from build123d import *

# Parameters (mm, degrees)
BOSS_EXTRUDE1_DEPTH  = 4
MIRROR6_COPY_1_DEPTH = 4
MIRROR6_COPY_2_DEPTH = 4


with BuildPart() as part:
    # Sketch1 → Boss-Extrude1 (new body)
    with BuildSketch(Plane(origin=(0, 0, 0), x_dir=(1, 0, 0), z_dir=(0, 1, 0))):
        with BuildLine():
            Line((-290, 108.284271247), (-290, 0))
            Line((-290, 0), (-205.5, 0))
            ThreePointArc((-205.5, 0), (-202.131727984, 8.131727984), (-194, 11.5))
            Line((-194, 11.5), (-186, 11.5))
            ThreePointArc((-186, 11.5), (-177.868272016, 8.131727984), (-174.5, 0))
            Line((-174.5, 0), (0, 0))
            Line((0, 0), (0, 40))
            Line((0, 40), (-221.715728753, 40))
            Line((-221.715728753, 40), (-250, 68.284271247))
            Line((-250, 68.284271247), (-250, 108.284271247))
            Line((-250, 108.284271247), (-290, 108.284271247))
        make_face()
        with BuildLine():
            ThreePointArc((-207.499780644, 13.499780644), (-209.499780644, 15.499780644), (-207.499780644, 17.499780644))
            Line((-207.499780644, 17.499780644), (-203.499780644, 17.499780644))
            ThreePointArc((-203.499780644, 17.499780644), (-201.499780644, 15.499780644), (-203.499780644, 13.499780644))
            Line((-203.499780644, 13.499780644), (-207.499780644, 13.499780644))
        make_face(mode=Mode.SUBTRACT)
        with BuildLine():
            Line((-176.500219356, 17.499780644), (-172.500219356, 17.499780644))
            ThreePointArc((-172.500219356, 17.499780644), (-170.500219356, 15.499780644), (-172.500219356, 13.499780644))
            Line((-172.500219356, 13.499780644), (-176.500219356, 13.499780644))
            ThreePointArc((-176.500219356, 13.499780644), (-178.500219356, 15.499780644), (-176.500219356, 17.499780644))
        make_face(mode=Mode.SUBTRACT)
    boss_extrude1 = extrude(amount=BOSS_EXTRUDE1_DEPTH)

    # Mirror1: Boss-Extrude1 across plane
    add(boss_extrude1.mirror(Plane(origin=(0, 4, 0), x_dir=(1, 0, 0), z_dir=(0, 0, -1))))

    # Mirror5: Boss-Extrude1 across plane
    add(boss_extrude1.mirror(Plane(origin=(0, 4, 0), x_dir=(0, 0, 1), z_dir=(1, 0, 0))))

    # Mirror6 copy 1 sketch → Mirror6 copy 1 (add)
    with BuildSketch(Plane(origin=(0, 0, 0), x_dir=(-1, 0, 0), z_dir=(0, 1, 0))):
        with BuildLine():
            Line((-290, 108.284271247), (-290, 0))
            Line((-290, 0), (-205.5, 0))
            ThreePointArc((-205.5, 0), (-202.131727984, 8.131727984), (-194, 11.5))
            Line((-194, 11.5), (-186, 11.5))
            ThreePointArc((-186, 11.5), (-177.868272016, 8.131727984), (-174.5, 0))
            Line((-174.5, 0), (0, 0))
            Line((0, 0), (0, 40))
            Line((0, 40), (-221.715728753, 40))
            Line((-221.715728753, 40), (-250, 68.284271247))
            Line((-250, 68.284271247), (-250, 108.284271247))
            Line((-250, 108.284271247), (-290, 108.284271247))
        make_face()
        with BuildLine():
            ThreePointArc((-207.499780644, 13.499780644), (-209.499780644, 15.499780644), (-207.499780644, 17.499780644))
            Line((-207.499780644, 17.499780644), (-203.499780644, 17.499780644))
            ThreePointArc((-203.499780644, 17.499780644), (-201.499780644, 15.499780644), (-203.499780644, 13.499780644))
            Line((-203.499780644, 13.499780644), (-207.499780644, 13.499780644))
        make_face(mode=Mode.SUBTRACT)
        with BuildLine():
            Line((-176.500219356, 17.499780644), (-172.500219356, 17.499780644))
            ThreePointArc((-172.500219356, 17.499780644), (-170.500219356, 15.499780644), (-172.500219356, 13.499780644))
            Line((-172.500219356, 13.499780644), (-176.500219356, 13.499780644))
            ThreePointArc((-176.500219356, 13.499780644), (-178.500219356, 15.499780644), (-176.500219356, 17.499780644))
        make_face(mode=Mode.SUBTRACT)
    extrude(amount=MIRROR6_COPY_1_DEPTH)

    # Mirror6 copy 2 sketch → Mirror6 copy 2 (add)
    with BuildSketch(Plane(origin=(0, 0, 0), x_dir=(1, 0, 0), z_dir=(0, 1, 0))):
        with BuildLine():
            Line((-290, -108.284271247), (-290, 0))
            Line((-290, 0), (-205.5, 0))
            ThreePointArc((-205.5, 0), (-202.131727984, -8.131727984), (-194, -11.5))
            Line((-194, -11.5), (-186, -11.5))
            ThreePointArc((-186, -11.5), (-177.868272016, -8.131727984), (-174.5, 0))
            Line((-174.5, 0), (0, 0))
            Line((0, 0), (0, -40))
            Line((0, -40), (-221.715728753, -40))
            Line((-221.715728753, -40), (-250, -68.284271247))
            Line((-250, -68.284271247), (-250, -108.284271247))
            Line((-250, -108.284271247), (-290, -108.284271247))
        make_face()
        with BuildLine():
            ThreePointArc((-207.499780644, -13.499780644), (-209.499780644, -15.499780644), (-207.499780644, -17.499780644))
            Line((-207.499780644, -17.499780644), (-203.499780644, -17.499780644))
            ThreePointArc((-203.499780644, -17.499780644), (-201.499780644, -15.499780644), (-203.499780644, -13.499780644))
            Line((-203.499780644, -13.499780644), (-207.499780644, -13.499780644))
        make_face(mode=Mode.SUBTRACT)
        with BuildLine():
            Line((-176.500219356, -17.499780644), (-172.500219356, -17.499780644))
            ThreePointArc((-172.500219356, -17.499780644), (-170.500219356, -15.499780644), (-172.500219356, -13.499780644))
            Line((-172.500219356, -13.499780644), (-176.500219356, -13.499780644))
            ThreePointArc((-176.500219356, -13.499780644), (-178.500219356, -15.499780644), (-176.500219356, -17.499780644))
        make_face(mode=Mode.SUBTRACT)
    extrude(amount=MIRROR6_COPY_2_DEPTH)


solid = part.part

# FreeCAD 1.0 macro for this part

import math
import FreeCAD as App
import Part
import Sketcher
Q = App.Units.Quantity

doc = App.newDocument("Part")
body = doc.addObject("PartDesign::Body", "Body")

# Sketch on XZ plane
sketch1 = body.newObject("Sketcher::SketchObject", "Sketch")
sketch1.AttachmentSupport = (doc.getObject("XZ_Plane"), [""])
sketch1.MapMode = "FlatFace"
sketch1.addGeometry([
    Part.LineSegment(App.Vector(-290, -108.284271, 0), App.Vector(-290, 0, 0)),  # 0
    Part.LineSegment(App.Vector(-290, 0, 0), App.Vector(-205.5, 0, 0)),  # 1
    Part.ArcOfCircle(Part.Circle(App.Vector(-194, 0, 0), App.Vector(0, 0, 1), 11.5), math.radians(180), math.radians(270)),  # 2
    Part.LineSegment(App.Vector(-194, -11.5, 0), App.Vector(-186, -11.5, 0)),  # 3
    Part.ArcOfCircle(Part.Circle(App.Vector(-186, 0, 0), App.Vector(0, 0, 1), 11.5), math.radians(-90), math.radians(0)),  # 4
    Part.LineSegment(App.Vector(-174.5, 0, 0), App.Vector(0, 0, 0)),  # 5
    Part.LineSegment(App.Vector(0, 0, 0), App.Vector(0, -40, 0)),  # 6
    Part.LineSegment(App.Vector(0, -40, 0), App.Vector(-221.715729, -40, 0)),  # 7
    Part.LineSegment(App.Vector(-221.715729, -40, 0), App.Vector(-250, -68.284271, 0)),  # 8
    Part.LineSegment(App.Vector(-250, -68.284271, 0), App.Vector(-250, -108.284271, 0)),  # 9
    Part.LineSegment(App.Vector(-250, -108.284271, 0), App.Vector(-290, -108.284271, 0)),  # 10
    Part.LineSegment(App.Vector(-203.499781, -13.499781, 0), App.Vector(-207.499781, -13.499781, 0)),  # 11
    Part.ArcOfCircle(Part.Circle(App.Vector(-207.499781, -15.499781, 0), App.Vector(0, 0, 1), 2), math.radians(90), math.radians(270)),  # 12
    Part.LineSegment(App.Vector(-207.499781, -17.499781, 0), App.Vector(-203.499781, -17.499781, 0)),  # 13
    Part.ArcOfCircle(Part.Circle(App.Vector(-203.499781, -15.499781, 0), App.Vector(0, 0, 1), 2), math.radians(-90), math.radians(90)),  # 14
    Part.ArcOfCircle(Part.Circle(App.Vector(-176.500219, -15.499781, 0), App.Vector(0, 0, 1), 2), math.radians(90), math.radians(270)),  # 15
    Part.LineSegment(App.Vector(-176.500219, -17.499781, 0), App.Vector(-172.500219, -17.499781, 0)),  # 16
    Part.ArcOfCircle(Part.Circle(App.Vector(-172.500219, -15.499781, 0), App.Vector(0, 0, 1), 2), math.radians(-90), math.radians(90)),  # 17
    Part.LineSegment(App.Vector(-172.500219, -13.499781, 0), App.Vector(-176.500219, -13.499781, 0)),  # 18
], False)
sketch1.addConstraint([
    Sketcher.Constraint("Coincident", 0, 2, 1, 1),
    Sketcher.Constraint("Coincident", 1, 2, 2, 1),
    Sketcher.Constraint("Tangent", 2, 2, 3, 1),
    Sketcher.Constraint("Tangent", 3, 2, 4, 1),
    Sketcher.Constraint("Coincident", 4, 2, 5, 1),
    Sketcher.Constraint("Coincident", 5, 2, 6, 1),
    Sketcher.Constraint("Coincident", 6, 2, 7, 1),
    Sketcher.Constraint("Coincident", 7, 2, 8, 1),
    Sketcher.Constraint("Coincident", 8, 2, 9, 1),
    Sketcher.Constraint("Coincident", 9, 2, 10, 1),
    Sketcher.Constraint("Coincident", 10, 2, 0, 1),
    Sketcher.Constraint("Tangent", 11, 2, 12, 1),
    Sketcher.Constraint("Tangent", 12, 2, 13, 1),
    Sketcher.Constraint("Tangent", 13, 2, 14, 1),
    Sketcher.Constraint("Tangent", 14, 2, 11, 1),
    Sketcher.Constraint("Tangent", 15, 2, 16, 1),
    Sketcher.Constraint("Tangent", 16, 2, 17, 1),
    Sketcher.Constraint("Tangent", 17, 2, 18, 1),
    Sketcher.Constraint("Tangent", 18, 2, 15, 1),
    Sketcher.Constraint("Vertical", 0),
    Sketcher.Constraint("Horizontal", 1),
    Sketcher.Constraint("Horizontal", 3),
    Sketcher.Constraint("Horizontal", 5),
    Sketcher.Constraint("Vertical", 6),
    Sketcher.Constraint("Horizontal", 7),
    Sketcher.Constraint("Vertical", 9),
    Sketcher.Constraint("Horizontal", 10),
    Sketcher.Constraint("Horizontal", 11),
    Sketcher.Constraint("Horizontal", 13),
    Sketcher.Constraint("Horizontal", 16),
    Sketcher.Constraint("Horizontal", 18),
    Sketcher.Constraint("Coincident", 5, 2, -1, 1),
    Sketcher.Constraint("Equal", 2, 4),
    Sketcher.Constraint("Equal", 14, 15),
    Sketcher.Constraint("PointOnObject", 2, 3, -1),
    Sketcher.Constraint("PointOnObject", 0, 2, -1),
    Sketcher.Constraint("Horizontal", 14, 3, 15, 3),
    Sketcher.Constraint("Equal", 13, 16),
    Sketcher.Constraint("Equal", 10, 6),
    Sketcher.Constraint("Equal", 6, 9),
    Sketcher.Constraint("Radius", 12, Q("2 mm")),
    Sketcher.Constraint("Radius", 2, Q("11.5 mm")),
    Sketcher.Constraint("DistanceX", 3, 1, 3, 2, Q("8 mm")),
    Sketcher.Constraint("DistanceX", 10, 2, 10, 1, Q("40 mm")),
    Sketcher.Constraint("DistanceX", 11, 2, 11, 1, Q("4 mm")),
    Sketcher.Constraint("Angle", 8, Q("-135 deg")),
    Sketcher.Constraint("Distance", 8, Q("40 mm")),
    Sketcher.Constraint("DistanceX", 1, 1, 1, 2, Q("84.5 mm")),
    Sketcher.Constraint("DistanceX", 5, 1, 5, 2, Q("174.5 mm")),
    Sketcher.Constraint("DistanceX", 12, 3, -1, 1, Q("207.499781 mm")),
    Sketcher.Constraint("DistanceY", 12, 3, -1, 1, Q("15.499781 mm")),
    Sketcher.Constraint("DistanceX", 15, 3, -1, 1, Q("176.500219 mm")),
])
pad1 = body.newObject("PartDesign::Pad", "Pad")
pad1.Profile = sketch1
pad1.Length = 4
pad1.Reversed = True
doc.recompute()

mirrored = body.newObject("PartDesign::Mirrored", "Mirrored")
mirrored.Originals = [pad1]
mirrored.MirrorPlane = (doc.getObject("XY_Plane"), [""])
body.Tip = mirrored
doc.recompute()

mirrored2 = body.newObject("PartDesign::Mirrored", "Mirrored001")
mirrored2.Originals = [pad1]
mirrored2.MirrorPlane = (doc.getObject("YZ_Plane"), [""])
body.Tip = mirrored2

# Sketch on XZ plane
sketch2 = body.newObject("Sketcher::SketchObject", "Sketch001")
sketch2.AttachmentSupport = (doc.getObject("XZ_Plane"), [""])
sketch2.MapMode = "FlatFace"
sketch2.addGeometry([
    Part.LineSegment(App.Vector(290, 108.284271, 0), App.Vector(290, 0, 0)),  # 0
    Part.LineSegment(App.Vector(290, 0, 0), App.Vector(205.5, 0, 0)),  # 1
    Part.ArcOfCircle(Part.Circle(App.Vector(194, 0, 0), App.Vector(0, 0, 1), 11.5), math.radians(0), math.radians(90)),  # 2
    Part.LineSegment(App.Vector(194, 11.5, 0), App.Vector(186, 11.5, 0)),  # 3
    Part.ArcOfCircle(Part.Circle(App.Vector(186, 0, 0), App.Vector(0, 0, 1), 11.5), math.radians(90), math.radians(180)),  # 4
    Part.LineSegment(App.Vector(174.5, 0, 0), App.Vector(0, 0, 0)),  # 5
    Part.LineSegment(App.Vector(0, 0, 0), App.Vector(0, 40, 0)),  # 6
    Part.LineSegment(App.Vector(0, 40, 0), App.Vector(221.715729, 40, 0)),  # 7
    Part.LineSegment(App.Vector(221.715729, 40, 0), App.Vector(250, 68.284271, 0)),  # 8
    Part.LineSegment(App.Vector(250, 68.284271, 0), App.Vector(250, 108.284271, 0)),  # 9
    Part.LineSegment(App.Vector(250, 108.284271, 0), App.Vector(290, 108.284271, 0)),  # 10
    Part.LineSegment(App.Vector(203.499781, 13.499781, 0), App.Vector(207.499781, 13.499781, 0)),  # 11
    Part.ArcOfCircle(Part.Circle(App.Vector(207.499781, 15.499781, 0), App.Vector(0, 0, 1), 2), math.radians(-90), math.radians(90)),  # 12
    Part.LineSegment(App.Vector(207.499781, 17.499781, 0), App.Vector(203.499781, 17.499781, 0)),  # 13
    Part.ArcOfCircle(Part.Circle(App.Vector(203.499781, 15.499781, 0), App.Vector(0, 0, 1), 2), math.radians(90), math.radians(270)),  # 14
    Part.ArcOfCircle(Part.Circle(App.Vector(176.500219, 15.499781, 0), App.Vector(0, 0, 1), 2), math.radians(-90), math.radians(90)),  # 15
    Part.LineSegment(App.Vector(176.500219, 17.499781, 0), App.Vector(172.500219, 17.499781, 0)),  # 16
    Part.ArcOfCircle(Part.Circle(App.Vector(172.500219, 15.499781, 0), App.Vector(0, 0, 1), 2), math.radians(90), math.radians(270)),  # 17
    Part.LineSegment(App.Vector(172.500219, 13.499781, 0), App.Vector(176.500219, 13.499781, 0)),  # 18
], False)
sketch2.addConstraint([
    Sketcher.Constraint("Coincident", 0, 2, 1, 1),
    Sketcher.Constraint("Coincident", 1, 2, 2, 1),
    Sketcher.Constraint("Tangent", 2, 2, 3, 1),
    Sketcher.Constraint("Tangent", 3, 2, 4, 1),
    Sketcher.Constraint("Coincident", 4, 2, 5, 1),
    Sketcher.Constraint("Coincident", 5, 2, 6, 1),
    Sketcher.Constraint("Coincident", 6, 2, 7, 1),
    Sketcher.Constraint("Coincident", 7, 2, 8, 1),
    Sketcher.Constraint("Coincident", 8, 2, 9, 1),
    Sketcher.Constraint("Coincident", 9, 2, 10, 1),
    Sketcher.Constraint("Coincident", 10, 2, 0, 1),
    Sketcher.Constraint("Tangent", 11, 2, 12, 1),
    Sketcher.Constraint("Tangent", 12, 2, 13, 1),
    Sketcher.Constraint("Tangent", 13, 2, 14, 1),
    Sketcher.Constraint("Tangent", 14, 2, 11, 1),
    Sketcher.Constraint("Tangent", 15, 2, 16, 1),
    Sketcher.Constraint("Tangent", 16, 2, 17, 1),
    Sketcher.Constraint("Tangent", 17, 2, 18, 1),
    Sketcher.Constraint("Tangent", 18, 2, 15, 1),
    Sketcher.Constraint("Vertical", 0),
    Sketcher.Constraint("Horizontal", 1),
    Sketcher.Constraint("Horizontal", 3),
    Sketcher.Constraint("Horizontal", 5),
    Sketcher.Constraint("Vertical", 6),
    Sketcher.Constraint("Horizontal", 7),
    Sketcher.Constraint("Vertical", 9),
    Sketcher.Constraint("Horizontal", 10),
    Sketcher.Constraint("Horizontal", 11),
    Sketcher.Constraint("Horizontal", 13),
    Sketcher.Constraint("Horizontal", 16),
    Sketcher.Constraint("Horizontal", 18),
    Sketcher.Constraint("Coincident", 5, 2, -1, 1),
    Sketcher.Constraint("Equal", 2, 4),
    Sketcher.Constraint("Equal", 14, 15),
    Sketcher.Constraint("PointOnObject", 2, 3, -1),
    Sketcher.Constraint("PointOnObject", 0, 2, -1),
    Sketcher.Constraint("Horizontal", 14, 3, 15, 3),
    Sketcher.Constraint("Equal", 13, 16),
    Sketcher.Constraint("Equal", 10, 6),
    Sketcher.Constraint("Equal", 6, 9),
    Sketcher.Constraint("Radius", 12, Q("2 mm")),
    Sketcher.Constraint("Radius", 2, Q("11.5 mm")),
    Sketcher.Constraint("DistanceX", 3, 2, 3, 1, Q("8 mm")),
    Sketcher.Constraint("DistanceX", 10, 1, 10, 2, Q("40 mm")),
    Sketcher.Constraint("DistanceX", 11, 1, 11, 2, Q("4 mm")),
    Sketcher.Constraint("Angle", 8, Q("45 deg")),
    Sketcher.Constraint("Distance", 8, Q("40 mm")),
    Sketcher.Constraint("DistanceX", 1, 2, 1, 1, Q("84.5 mm")),
    Sketcher.Constraint("DistanceX", 5, 2, 5, 1, Q("174.5 mm")),
    Sketcher.Constraint("DistanceX", -1, 1, 12, 3, Q("207.499781 mm")),
    Sketcher.Constraint("DistanceY", -1, 1, 12, 3, Q("15.499781 mm")),
    Sketcher.Constraint("DistanceX", -1, 1, 15, 3, Q("176.500219 mm")),
])
pad2 = body.newObject("PartDesign::Pad", "Pad001")
pad2.Profile = sketch2
pad2.Length = 4
pad2.Reversed = True

# Sketch on XZ plane
sketch3 = body.newObject("Sketcher::SketchObject", "Sketch002")
sketch3.AttachmentSupport = (doc.getObject("XZ_Plane"), [""])
sketch3.MapMode = "FlatFace"
sketch3.addGeometry([
    Part.LineSegment(App.Vector(-290, 0, 0), App.Vector(-290, 108.284271, 0)),  # 0
    Part.LineSegment(App.Vector(-290, 108.284271, 0), App.Vector(-250, 108.284271, 0)),  # 1
    Part.LineSegment(App.Vector(-250, 108.284271, 0), App.Vector(-250, 68.284271, 0)),  # 2
    Part.LineSegment(App.Vector(-250, 68.284271, 0), App.Vector(-221.715729, 40, 0)),  # 3
    Part.LineSegment(App.Vector(-221.715729, 40, 0), App.Vector(0, 40, 0)),  # 4
    Part.LineSegment(App.Vector(0, 40, 0), App.Vector(0, 0, 0)),  # 5
    Part.LineSegment(App.Vector(0, 0, 0), App.Vector(-174.5, 0, 0)),  # 6
    Part.ArcOfCircle(Part.Circle(App.Vector(-186, 0, 0), App.Vector(0, 0, 1), 11.5), math.radians(0), math.radians(90)),  # 7
    Part.LineSegment(App.Vector(-186, 11.5, 0), App.Vector(-194, 11.5, 0)),  # 8
    Part.ArcOfCircle(Part.Circle(App.Vector(-194, 0, 0), App.Vector(0, 0, 1), 11.5), math.radians(90), math.radians(180)),  # 9
    Part.LineSegment(App.Vector(-205.5, 0, 0), App.Vector(-290, 0, 0)),  # 10
    Part.ArcOfCircle(Part.Circle(App.Vector(-176.500219, 15.499781, 0), App.Vector(0, 0, 1), 2), math.radians(90), math.radians(270)),  # 11
    Part.LineSegment(App.Vector(-176.500219, 13.499781, 0), App.Vector(-172.500219, 13.499781, 0)),  # 12
    Part.ArcOfCircle(Part.Circle(App.Vector(-172.500219, 15.499781, 0), App.Vector(0, 0, 1), 2), math.radians(-90), math.radians(90)),  # 13
    Part.LineSegment(App.Vector(-172.500219, 17.499781, 0), App.Vector(-176.500219, 17.499781, 0)),  # 14
    Part.LineSegment(App.Vector(-207.499781, 13.499781, 0), App.Vector(-203.499781, 13.499781, 0)),  # 15
    Part.ArcOfCircle(Part.Circle(App.Vector(-203.499781, 15.499781, 0), App.Vector(0, 0, 1), 2), math.radians(-90), math.radians(90)),  # 16
    Part.LineSegment(App.Vector(-203.499781, 17.499781, 0), App.Vector(-207.499781, 17.499781, 0)),  # 17
    Part.ArcOfCircle(Part.Circle(App.Vector(-207.499781, 15.499781, 0), App.Vector(0, 0, 1), 2), math.radians(90), math.radians(270)),  # 18
], False)
sketch3.addConstraint([
    Sketcher.Constraint("Coincident", 0, 2, 1, 1),
    Sketcher.Constraint("Coincident", 1, 2, 2, 1),
    Sketcher.Constraint("Coincident", 2, 2, 3, 1),
    Sketcher.Constraint("Coincident", 3, 2, 4, 1),
    Sketcher.Constraint("Coincident", 4, 2, 5, 1),
    Sketcher.Constraint("Coincident", 5, 2, 6, 1),
    Sketcher.Constraint("Coincident", 6, 2, 7, 1),
    Sketcher.Constraint("Tangent", 7, 2, 8, 1),
    Sketcher.Constraint("Tangent", 8, 2, 9, 1),
    Sketcher.Constraint("Coincident", 9, 2, 10, 1),
    Sketcher.Constraint("Coincident", 10, 2, 0, 1),
    Sketcher.Constraint("Tangent", 11, 2, 12, 1),
    Sketcher.Constraint("Tangent", 12, 2, 13, 1),
    Sketcher.Constraint("Tangent", 13, 2, 14, 1),
    Sketcher.Constraint("Tangent", 14, 2, 11, 1),
    Sketcher.Constraint("Tangent", 15, 2, 16, 1),
    Sketcher.Constraint("Tangent", 16, 2, 17, 1),
    Sketcher.Constraint("Tangent", 17, 2, 18, 1),
    Sketcher.Constraint("Tangent", 18, 2, 15, 1),
    Sketcher.Constraint("Vertical", 0),
    Sketcher.Constraint("Horizontal", 1),
    Sketcher.Constraint("Vertical", 2),
    Sketcher.Constraint("Horizontal", 4),
    Sketcher.Constraint("Vertical", 5),
    Sketcher.Constraint("Horizontal", 6),
    Sketcher.Constraint("Horizontal", 8),
    Sketcher.Constraint("Horizontal", 10),
    Sketcher.Constraint("Horizontal", 12),
    Sketcher.Constraint("Horizontal", 14),
    Sketcher.Constraint("Horizontal", 15),
    Sketcher.Constraint("Horizontal", 17),
    Sketcher.Constraint("Coincident", 5, 2, -1, 1),
    Sketcher.Constraint("Equal", 7, 9),
    Sketcher.Constraint("Equal", 13, 16),
    Sketcher.Constraint("PointOnObject", 7, 3, -1),
    Sketcher.Constraint("PointOnObject", 9, 2, -1),
    Sketcher.Constraint("Horizontal", 13, 3, 16, 3),
    Sketcher.Constraint("Equal", 14, 15),
    Sketcher.Constraint("Equal", 1, 2),
    Sketcher.Constraint("Equal", 2, 5),
    Sketcher.Constraint("Radius", 11, Q("2 mm")),
    Sketcher.Constraint("Radius", 7, Q("11.5 mm")),
    Sketcher.Constraint("DistanceX", 1, 1, 1, 2, Q("40 mm")),
    Sketcher.Constraint("DistanceX", 8, 2, 8, 1, Q("8 mm")),
    Sketcher.Constraint("DistanceX", 12, 1, 12, 2, Q("4 mm")),
    Sketcher.Constraint("Angle", 3, Q("-45 deg")),
    Sketcher.Constraint("Distance", 3, Q("40 mm")),
    Sketcher.Constraint("DistanceX", 6, 2, 6, 1, Q("174.5 mm")),
    Sketcher.Constraint("DistanceX", 10, 2, 10, 1, Q("84.5 mm")),
    Sketcher.Constraint("DistanceX", 11, 3, -1, 1, Q("176.500219 mm")),
    Sketcher.Constraint("DistanceY", -1, 1, 11, 3, Q("15.499781 mm")),
    Sketcher.Constraint("DistanceX", 16, 3, -1, 1, Q("203.499781 mm")),
])
pad3 = body.newObject("PartDesign::Pad", "Pad002")
pad3.Profile = sketch3
pad3.Length = 4
pad3.Reversed = True

doc.recompute()
